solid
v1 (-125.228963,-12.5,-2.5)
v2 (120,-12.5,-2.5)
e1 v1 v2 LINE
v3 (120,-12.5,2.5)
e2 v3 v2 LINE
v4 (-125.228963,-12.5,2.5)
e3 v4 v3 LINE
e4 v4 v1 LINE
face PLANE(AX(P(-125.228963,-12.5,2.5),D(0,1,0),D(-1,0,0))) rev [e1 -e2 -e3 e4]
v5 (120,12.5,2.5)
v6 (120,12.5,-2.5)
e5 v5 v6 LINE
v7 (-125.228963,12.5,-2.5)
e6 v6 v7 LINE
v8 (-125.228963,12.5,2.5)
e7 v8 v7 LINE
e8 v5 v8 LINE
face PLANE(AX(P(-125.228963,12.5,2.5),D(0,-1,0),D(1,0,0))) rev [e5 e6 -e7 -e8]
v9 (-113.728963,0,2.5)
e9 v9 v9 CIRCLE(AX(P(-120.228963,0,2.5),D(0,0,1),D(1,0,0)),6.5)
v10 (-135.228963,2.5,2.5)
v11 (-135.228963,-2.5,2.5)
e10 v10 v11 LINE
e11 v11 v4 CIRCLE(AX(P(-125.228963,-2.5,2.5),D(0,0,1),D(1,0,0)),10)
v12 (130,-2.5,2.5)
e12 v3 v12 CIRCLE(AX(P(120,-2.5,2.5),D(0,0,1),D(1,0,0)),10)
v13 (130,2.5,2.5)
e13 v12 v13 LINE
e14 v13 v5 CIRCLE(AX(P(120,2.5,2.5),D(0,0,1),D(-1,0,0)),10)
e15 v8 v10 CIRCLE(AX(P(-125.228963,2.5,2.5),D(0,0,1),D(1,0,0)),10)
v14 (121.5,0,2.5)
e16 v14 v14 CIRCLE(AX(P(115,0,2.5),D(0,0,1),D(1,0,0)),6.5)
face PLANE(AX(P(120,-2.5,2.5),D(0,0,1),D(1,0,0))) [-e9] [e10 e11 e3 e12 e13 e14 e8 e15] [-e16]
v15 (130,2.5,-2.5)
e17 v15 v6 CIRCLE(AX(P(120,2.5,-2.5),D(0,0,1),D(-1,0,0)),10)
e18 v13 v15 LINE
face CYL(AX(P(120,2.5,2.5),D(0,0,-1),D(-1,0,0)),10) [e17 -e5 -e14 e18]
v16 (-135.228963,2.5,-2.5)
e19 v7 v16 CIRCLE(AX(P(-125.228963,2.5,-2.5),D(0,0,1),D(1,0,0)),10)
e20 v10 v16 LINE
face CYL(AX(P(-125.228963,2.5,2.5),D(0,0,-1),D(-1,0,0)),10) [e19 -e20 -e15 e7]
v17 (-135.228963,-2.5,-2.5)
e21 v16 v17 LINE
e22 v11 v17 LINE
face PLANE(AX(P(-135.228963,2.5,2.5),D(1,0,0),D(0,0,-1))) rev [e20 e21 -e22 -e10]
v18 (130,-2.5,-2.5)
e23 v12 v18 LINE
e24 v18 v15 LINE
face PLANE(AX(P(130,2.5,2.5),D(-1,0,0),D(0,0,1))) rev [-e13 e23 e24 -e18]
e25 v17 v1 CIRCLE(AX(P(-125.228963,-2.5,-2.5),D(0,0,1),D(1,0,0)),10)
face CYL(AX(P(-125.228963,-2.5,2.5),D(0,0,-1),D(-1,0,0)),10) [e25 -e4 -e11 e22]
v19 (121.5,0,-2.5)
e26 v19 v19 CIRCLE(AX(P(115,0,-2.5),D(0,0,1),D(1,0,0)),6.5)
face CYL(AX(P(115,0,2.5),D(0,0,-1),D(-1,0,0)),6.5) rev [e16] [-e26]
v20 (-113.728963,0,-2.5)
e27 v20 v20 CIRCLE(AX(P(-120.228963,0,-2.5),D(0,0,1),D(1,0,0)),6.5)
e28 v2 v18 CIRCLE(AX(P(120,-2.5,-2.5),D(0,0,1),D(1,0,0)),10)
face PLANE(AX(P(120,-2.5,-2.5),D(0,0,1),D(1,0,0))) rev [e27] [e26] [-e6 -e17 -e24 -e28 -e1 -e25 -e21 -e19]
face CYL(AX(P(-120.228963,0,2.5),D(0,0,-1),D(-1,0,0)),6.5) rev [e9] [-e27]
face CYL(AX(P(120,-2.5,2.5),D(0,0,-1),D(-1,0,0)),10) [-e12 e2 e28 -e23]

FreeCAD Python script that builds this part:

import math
import FreeCAD as App
import Part
import Sketcher
Q = App.Units.Quantity

doc = App.newDocument("Part")
body = doc.addObject("PartDesign::Body", "Body")

# Sketch on XY plane
sketch1 = body.newObject("Sketcher::SketchObject", "Sketch")
sketch1.AttachmentSupport = (doc.getObject("XY_Plane"), [""])
sketch1.MapMode = "FlatFace"
sketch1.addGeometry([
    Part.LineSegment(App.Vector(120, 12, 0), App.Vector(-125, 12, 0)),  # 0
    Part.ArcOfCircle(Part.Circle(App.Vector(-125, 2, 0), App.Vector(0, 0, 1), 10), math.radians(90), math.radians(180)),  # 1
    Part.LineSegment(App.Vector(-135, 2, 0), App.Vector(-135, -2, 0)),  # 2
    Part.ArcOfCircle(Part.Circle(App.Vector(-125, -2, 0), App.Vector(0, 0, 1), 10), math.radians(180), math.radians(270)),  # 3
    Part.LineSegment(App.Vector(-125, -12, 0), App.Vector(120, -12, 0)),  # 4
    Part.ArcOfCircle(Part.Circle(App.Vector(120, -2, 0), App.Vector(0, 0, 1), 10), math.radians(-90), math.radians(0)),  # 5
    Part.LineSegment(App.Vector(130, -2, 0), App.Vector(130, 2, 0)),  # 6
    Part.ArcOfCircle(Part.Circle(App.Vector(120, 2, 0), App.Vector(0, 0, 1), 10), math.radians(0), math.radians(90)),  # 7
    Part.Circle(App.Vector(115, 0, 0), App.Vector(0, 0, 1), 6),  # 8
    Part.Circle(App.Vector(-120, 0, 0), App.Vector(0, 0, 1), 6),  # 9
], False)
sketch1.addConstraint([
    Sketcher.Constraint("Tangent", 0, 2, 1, 1),
    Sketcher.Constraint("Tangent", 1, 2, 2, 1),
    Sketcher.Constraint("Tangent", 2, 2, 3, 1),
    Sketcher.Constraint("Tangent", 3, 2, 4, 1),
    Sketcher.Constraint("Tangent", 4, 2, 5, 1),
    Sketcher.Constraint("Tangent", 5, 2, 6, 1),
    Sketcher.Constraint("Tangent", 6, 2, 7, 1),
    Sketcher.Constraint("Tangent", 7, 2, 0, 1),
    Sketcher.Constraint("Horizontal", 0),
    Sketcher.Constraint("Vertical", 2),
    Sketcher.Constraint("Horizontal", 4),
    Sketcher.Constraint("Vertical", 6),
    Sketcher.Constraint("Equal", 1, 3),
    Sketcher.Constraint("Equal", 3, 5),
    Sketcher.Constraint("Equal", 5, 7),
    Sketcher.Constraint("Equal", 8, 9),
    Sketcher.Constraint("PointOnObject", 8, 3, -1),
    Sketcher.Constraint("PointOnObject", 9, 3, -1),
    Sketcher.Constraint("Diameter", 8, Q("13 mm")),
    Sketcher.Constraint("Radius", 1, Q("10 mm")),
    Sketcher.Constraint("DistanceY", 2, 2, 2, 1, Q("5 mm")),
    Sketcher.Constraint("DistanceX", -1, 1, 5, 3, Q("120 mm")),
    Sketcher.Constraint("DistanceX", -1, 1, 8, 3, Q("115 mm")),
    Sketcher.Constraint("DistanceX", 1, 3, 9, 3, Q("5 mm")),
    Sketcher.Constraint("DistanceY", -1, 1, 1, 3, Q("2.5 mm")),
    Sketcher.Constraint("DistanceX", 0, 2, 0, 1, Q("245.228963 mm")),
])
pad1 = body.newObject("PartDesign::Pad", "Pad")
pad1.Profile = sketch1
pad1.Length = 5
pad1.Midplane = True

doc.recompute()
